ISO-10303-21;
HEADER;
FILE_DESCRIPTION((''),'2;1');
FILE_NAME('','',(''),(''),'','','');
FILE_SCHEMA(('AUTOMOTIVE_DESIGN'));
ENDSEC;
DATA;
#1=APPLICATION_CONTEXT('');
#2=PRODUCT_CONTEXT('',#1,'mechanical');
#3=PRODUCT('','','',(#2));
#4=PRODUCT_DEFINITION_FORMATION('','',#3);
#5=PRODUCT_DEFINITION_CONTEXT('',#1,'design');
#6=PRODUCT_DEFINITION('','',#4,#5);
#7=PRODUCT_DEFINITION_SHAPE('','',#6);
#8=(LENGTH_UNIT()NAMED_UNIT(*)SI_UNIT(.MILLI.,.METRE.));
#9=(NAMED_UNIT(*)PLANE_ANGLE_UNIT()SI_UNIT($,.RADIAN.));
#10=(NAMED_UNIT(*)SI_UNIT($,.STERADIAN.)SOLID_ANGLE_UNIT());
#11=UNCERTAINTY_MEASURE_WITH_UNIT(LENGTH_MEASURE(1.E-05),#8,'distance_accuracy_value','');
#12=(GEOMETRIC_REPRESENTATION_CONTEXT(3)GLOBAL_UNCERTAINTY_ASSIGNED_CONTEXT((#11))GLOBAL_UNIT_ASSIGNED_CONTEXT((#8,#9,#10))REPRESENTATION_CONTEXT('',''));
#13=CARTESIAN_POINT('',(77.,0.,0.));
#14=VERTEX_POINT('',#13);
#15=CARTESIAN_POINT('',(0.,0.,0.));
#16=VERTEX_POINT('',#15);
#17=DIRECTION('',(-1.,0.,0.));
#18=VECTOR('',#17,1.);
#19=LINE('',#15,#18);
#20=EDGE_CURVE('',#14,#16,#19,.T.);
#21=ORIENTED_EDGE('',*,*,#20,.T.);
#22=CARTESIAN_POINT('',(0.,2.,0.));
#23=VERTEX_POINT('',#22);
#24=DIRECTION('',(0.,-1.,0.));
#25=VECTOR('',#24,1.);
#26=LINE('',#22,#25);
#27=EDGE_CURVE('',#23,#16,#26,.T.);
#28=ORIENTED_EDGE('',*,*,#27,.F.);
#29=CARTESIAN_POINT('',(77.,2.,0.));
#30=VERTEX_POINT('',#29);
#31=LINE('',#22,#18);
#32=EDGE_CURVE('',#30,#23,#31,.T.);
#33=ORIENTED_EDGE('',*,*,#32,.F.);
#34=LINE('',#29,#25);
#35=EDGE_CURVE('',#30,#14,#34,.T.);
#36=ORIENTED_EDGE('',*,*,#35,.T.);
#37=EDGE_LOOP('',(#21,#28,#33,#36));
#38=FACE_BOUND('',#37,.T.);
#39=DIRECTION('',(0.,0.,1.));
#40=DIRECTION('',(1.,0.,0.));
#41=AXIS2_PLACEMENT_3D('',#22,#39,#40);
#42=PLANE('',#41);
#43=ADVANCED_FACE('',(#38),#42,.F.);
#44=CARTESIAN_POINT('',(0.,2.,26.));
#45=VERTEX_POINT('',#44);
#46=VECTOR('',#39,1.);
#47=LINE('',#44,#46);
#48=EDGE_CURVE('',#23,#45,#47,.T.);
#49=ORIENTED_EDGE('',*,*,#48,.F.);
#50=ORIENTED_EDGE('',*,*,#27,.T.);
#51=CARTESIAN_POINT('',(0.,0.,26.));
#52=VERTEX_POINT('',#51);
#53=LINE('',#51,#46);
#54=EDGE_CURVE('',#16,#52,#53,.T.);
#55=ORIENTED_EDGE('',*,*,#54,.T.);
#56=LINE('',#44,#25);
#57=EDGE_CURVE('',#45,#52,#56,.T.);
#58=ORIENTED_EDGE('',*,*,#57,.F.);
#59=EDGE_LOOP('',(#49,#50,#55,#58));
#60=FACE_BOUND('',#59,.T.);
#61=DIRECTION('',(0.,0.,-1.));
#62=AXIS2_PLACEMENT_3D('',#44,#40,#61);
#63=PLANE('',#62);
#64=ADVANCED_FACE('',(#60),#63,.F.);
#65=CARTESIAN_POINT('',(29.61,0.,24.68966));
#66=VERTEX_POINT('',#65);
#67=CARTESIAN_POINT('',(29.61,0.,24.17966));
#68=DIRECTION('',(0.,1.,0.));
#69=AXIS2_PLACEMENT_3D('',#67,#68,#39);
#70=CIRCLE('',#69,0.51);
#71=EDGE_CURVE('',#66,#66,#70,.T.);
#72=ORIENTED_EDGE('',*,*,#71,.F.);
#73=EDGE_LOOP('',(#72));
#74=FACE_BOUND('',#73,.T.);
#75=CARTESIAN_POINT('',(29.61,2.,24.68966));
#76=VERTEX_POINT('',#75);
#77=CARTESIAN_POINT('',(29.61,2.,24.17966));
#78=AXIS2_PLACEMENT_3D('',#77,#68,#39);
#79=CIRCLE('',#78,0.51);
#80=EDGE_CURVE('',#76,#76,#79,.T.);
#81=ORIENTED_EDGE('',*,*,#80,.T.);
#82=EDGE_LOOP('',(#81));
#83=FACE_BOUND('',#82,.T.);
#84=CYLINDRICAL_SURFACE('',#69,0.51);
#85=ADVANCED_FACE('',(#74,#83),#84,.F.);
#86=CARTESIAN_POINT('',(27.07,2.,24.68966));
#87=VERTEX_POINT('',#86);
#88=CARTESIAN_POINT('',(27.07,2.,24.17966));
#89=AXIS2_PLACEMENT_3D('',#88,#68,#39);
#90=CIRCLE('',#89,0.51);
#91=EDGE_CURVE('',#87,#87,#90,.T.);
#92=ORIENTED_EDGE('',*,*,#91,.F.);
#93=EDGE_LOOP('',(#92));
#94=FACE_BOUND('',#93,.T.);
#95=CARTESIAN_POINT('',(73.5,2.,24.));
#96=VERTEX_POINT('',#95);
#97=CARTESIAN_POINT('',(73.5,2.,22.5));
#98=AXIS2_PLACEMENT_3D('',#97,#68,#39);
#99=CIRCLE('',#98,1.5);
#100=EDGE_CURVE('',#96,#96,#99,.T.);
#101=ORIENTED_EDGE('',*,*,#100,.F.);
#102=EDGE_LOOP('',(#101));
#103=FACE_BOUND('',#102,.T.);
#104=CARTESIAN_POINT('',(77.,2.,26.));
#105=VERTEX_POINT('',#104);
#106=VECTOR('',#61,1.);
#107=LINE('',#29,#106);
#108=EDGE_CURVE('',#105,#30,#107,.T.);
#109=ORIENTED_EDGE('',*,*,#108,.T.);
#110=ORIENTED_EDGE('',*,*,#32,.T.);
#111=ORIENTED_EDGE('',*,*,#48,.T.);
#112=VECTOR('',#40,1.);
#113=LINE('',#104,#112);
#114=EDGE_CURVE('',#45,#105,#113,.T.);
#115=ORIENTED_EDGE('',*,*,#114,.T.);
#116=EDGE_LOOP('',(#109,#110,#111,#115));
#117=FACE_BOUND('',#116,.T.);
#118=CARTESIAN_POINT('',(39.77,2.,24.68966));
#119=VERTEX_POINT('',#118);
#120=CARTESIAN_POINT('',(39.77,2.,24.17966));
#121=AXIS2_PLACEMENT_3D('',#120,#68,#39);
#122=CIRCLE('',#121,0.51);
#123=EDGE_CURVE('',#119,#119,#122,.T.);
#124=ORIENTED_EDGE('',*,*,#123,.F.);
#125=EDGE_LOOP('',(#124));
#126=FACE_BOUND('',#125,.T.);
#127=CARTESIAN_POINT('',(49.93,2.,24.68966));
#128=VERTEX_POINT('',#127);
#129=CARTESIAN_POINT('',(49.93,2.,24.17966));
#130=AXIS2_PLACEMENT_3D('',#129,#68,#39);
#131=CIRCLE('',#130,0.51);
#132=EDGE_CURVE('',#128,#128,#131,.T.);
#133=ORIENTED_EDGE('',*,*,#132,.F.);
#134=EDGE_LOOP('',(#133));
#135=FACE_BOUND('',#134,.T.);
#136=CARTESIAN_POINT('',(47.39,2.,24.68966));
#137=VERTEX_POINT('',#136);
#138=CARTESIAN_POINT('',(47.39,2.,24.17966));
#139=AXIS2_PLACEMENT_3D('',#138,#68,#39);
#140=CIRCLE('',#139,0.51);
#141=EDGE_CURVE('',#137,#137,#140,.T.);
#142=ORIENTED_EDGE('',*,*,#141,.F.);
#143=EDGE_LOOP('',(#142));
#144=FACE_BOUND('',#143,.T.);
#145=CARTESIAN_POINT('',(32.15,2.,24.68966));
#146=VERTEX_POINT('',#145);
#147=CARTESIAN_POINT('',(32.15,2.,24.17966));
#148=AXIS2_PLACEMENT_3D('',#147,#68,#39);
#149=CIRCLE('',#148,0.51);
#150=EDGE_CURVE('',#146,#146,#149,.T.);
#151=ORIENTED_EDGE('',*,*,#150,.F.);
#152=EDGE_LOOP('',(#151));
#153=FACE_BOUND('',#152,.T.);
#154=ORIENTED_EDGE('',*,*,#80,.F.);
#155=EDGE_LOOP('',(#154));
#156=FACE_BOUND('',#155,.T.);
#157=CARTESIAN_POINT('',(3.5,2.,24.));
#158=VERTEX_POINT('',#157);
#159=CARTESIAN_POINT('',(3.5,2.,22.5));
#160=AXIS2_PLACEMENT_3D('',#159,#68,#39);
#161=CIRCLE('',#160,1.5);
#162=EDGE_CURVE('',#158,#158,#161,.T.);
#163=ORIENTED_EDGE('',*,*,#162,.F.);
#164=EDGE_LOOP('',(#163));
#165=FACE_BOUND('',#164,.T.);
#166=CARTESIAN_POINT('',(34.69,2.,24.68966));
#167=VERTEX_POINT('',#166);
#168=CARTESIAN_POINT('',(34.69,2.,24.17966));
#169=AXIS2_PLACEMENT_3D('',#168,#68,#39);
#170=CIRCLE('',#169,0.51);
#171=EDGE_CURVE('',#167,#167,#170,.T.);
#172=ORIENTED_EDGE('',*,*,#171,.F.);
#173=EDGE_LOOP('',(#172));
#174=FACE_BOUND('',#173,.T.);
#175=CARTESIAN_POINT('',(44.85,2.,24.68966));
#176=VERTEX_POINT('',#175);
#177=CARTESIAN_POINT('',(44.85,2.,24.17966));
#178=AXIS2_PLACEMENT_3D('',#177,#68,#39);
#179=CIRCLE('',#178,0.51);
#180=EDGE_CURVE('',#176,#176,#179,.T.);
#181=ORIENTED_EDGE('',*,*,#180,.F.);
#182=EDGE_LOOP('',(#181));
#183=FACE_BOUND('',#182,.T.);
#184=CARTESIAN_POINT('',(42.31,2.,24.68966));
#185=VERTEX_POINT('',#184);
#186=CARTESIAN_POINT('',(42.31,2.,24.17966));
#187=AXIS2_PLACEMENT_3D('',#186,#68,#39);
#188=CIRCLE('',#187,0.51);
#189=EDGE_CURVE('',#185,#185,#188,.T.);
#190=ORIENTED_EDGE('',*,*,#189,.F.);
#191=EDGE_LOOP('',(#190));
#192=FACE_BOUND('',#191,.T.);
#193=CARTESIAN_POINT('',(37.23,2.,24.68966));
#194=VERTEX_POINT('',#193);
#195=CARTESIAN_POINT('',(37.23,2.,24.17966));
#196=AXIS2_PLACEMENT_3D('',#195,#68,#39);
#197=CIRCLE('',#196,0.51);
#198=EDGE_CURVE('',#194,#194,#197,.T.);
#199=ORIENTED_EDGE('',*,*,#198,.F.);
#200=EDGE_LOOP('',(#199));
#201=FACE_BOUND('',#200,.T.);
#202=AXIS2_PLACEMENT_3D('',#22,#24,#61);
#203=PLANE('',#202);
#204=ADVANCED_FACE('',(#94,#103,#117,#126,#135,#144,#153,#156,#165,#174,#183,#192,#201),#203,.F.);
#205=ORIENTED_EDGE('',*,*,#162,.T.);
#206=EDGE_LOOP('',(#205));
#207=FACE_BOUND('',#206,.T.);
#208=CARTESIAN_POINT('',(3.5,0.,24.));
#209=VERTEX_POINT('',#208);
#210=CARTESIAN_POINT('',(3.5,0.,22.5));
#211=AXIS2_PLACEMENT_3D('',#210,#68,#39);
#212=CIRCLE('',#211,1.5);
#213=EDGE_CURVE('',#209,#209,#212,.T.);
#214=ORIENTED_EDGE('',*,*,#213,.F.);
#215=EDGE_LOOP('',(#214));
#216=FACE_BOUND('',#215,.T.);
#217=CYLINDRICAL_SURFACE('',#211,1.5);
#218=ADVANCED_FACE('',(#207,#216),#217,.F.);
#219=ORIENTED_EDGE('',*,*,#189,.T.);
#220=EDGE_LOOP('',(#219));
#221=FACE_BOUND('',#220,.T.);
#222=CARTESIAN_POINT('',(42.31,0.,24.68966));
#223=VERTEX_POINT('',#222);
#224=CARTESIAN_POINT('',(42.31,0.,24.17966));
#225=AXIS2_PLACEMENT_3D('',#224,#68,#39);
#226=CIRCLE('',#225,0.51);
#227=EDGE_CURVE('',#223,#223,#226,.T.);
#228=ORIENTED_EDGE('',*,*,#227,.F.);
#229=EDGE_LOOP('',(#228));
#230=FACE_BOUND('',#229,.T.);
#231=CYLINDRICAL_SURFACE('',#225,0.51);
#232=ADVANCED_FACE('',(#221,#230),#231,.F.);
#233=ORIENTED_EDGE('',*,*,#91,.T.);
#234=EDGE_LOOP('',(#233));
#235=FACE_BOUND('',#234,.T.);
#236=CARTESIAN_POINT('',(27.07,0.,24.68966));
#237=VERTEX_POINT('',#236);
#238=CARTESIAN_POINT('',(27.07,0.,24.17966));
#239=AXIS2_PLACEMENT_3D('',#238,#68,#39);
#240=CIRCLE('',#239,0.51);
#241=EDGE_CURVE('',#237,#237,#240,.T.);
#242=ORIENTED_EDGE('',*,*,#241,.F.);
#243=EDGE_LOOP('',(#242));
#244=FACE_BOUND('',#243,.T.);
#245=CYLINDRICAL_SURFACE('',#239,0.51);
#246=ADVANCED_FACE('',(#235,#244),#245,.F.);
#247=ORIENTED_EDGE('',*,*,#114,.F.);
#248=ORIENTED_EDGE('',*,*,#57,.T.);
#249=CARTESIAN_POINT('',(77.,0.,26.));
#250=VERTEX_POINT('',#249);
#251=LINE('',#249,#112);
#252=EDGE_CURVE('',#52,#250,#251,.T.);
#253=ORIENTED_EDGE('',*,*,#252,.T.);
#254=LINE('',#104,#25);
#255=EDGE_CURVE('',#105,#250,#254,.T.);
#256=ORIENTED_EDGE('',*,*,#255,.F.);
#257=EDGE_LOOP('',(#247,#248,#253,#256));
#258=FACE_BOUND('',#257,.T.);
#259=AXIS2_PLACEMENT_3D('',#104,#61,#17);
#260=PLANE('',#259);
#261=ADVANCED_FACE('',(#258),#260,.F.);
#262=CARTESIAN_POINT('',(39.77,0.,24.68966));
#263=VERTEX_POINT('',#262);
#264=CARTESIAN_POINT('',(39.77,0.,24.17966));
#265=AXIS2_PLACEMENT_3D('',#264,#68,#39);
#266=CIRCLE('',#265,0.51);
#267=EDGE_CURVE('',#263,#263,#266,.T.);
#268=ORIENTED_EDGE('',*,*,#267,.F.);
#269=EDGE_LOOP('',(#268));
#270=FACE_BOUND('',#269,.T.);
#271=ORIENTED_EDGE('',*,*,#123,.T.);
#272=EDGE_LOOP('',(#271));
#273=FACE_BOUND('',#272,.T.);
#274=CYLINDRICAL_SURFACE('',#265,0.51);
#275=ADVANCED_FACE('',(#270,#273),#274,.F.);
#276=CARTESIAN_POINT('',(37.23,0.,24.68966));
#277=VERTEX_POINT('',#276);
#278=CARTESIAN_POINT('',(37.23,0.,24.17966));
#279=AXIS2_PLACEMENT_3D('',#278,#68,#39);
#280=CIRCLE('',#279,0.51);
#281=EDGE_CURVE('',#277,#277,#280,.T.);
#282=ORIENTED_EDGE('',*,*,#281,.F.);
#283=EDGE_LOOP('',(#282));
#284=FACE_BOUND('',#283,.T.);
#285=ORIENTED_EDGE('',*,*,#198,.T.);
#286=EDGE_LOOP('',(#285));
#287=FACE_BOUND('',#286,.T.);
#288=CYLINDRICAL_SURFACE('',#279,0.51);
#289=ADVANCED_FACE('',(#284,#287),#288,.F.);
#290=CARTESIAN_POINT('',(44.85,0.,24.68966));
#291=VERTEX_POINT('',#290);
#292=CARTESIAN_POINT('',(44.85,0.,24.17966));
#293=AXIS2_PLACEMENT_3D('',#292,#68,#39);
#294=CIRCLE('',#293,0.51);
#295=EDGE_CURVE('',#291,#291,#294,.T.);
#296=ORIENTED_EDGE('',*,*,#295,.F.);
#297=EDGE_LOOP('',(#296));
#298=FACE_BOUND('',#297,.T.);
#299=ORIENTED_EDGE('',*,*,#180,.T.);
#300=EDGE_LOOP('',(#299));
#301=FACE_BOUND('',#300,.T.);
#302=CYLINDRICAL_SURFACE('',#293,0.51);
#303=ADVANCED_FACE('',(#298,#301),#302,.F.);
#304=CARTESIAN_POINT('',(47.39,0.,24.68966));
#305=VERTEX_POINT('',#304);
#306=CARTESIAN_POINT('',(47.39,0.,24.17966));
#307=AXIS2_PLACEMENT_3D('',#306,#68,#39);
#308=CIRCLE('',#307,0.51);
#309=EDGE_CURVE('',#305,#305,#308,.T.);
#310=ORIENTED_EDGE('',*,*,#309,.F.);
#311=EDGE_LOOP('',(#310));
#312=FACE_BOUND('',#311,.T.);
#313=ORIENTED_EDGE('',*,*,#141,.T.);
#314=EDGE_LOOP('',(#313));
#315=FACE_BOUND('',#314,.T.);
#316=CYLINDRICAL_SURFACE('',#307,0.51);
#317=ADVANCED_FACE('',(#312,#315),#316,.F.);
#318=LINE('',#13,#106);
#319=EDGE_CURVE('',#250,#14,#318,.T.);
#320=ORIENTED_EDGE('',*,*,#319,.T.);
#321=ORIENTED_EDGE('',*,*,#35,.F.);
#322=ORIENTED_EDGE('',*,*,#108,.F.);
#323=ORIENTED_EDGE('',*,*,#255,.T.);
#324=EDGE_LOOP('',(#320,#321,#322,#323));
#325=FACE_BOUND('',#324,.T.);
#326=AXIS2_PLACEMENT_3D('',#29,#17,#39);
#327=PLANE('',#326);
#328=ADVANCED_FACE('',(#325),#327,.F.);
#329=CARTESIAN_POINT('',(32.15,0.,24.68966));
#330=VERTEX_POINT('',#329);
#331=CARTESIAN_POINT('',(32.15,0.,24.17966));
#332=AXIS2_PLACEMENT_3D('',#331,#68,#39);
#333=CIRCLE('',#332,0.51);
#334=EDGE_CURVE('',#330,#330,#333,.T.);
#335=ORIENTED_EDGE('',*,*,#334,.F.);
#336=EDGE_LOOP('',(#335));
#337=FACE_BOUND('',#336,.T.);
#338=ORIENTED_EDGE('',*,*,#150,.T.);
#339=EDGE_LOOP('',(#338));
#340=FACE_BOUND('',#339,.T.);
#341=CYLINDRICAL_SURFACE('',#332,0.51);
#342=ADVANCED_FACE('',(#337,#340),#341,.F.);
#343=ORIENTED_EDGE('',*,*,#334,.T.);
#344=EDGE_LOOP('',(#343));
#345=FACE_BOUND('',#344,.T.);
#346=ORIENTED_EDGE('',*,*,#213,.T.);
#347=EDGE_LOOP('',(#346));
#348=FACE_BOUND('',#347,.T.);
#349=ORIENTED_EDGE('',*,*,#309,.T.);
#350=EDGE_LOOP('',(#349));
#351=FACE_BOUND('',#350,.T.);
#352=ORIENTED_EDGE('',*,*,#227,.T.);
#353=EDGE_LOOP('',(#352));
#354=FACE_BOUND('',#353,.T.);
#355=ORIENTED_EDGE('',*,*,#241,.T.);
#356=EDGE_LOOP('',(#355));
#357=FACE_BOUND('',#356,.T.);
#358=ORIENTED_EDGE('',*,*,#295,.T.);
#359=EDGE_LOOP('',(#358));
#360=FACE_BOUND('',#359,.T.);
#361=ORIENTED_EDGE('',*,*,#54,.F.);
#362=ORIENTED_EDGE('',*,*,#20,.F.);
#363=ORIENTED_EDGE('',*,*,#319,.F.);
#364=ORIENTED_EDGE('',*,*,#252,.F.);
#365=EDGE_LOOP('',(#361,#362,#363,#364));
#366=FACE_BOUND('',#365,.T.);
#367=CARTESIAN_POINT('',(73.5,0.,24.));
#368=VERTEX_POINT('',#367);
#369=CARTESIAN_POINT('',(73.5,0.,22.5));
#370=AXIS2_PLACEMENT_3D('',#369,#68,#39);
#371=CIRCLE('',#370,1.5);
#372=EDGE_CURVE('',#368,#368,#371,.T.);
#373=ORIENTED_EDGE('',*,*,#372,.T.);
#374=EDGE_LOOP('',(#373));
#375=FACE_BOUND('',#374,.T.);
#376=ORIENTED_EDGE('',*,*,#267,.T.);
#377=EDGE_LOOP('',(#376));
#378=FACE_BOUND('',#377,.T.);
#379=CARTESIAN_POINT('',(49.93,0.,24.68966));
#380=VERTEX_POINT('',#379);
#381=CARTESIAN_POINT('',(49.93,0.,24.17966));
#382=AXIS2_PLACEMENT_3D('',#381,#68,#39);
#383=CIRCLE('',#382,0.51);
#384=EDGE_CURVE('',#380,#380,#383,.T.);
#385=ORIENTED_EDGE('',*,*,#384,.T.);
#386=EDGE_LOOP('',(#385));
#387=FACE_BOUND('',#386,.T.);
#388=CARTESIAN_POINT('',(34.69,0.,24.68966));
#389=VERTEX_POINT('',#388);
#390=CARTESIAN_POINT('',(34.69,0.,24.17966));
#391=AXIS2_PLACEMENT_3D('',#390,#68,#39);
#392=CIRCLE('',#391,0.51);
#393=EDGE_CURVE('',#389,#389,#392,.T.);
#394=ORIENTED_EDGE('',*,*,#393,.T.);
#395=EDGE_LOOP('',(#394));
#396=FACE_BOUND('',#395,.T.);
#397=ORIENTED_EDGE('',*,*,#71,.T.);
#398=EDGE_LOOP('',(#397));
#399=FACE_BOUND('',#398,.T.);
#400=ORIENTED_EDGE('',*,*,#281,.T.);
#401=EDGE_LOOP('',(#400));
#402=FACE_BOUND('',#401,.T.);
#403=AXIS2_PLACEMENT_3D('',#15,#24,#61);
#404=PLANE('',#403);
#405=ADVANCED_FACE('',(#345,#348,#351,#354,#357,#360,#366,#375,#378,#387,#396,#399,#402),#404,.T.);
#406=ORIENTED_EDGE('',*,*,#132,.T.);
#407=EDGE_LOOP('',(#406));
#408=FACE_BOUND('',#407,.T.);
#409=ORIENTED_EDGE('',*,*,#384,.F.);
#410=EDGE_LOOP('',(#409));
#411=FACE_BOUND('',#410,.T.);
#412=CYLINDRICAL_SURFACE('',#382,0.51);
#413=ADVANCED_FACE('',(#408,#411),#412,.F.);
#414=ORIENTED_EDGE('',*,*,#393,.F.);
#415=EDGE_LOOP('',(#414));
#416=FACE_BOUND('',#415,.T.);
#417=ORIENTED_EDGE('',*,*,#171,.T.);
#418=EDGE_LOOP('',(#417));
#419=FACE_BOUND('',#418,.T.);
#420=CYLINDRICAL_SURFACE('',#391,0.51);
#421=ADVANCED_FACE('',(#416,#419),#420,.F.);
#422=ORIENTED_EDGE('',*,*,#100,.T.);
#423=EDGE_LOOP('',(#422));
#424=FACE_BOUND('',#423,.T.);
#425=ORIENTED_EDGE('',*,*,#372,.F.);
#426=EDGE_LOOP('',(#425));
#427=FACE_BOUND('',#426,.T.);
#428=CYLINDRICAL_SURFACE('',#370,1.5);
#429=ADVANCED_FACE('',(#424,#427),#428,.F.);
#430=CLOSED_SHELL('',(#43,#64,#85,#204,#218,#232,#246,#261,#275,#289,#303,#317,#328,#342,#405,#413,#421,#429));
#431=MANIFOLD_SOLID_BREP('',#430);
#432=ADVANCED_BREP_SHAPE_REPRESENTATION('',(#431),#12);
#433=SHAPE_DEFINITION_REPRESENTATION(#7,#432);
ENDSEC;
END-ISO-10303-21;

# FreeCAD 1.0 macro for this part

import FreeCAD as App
import Part
import Sketcher
Q = App.Units.Quantity

doc = App.newDocument("Part")
body = doc.addObject("PartDesign::Body", "Body")

# Sketch on XZ plane
sketch1 = body.newObject("Sketcher::SketchObject", "Sketch")
sketch1.AttachmentSupport = (doc.getObject("XZ_Plane"), [""])
sketch1.MapMode = "FlatFace"
sketch1.addGeometry(Part.LineSegment(App.Vector(0, 0, 0), App.Vector(0, 26, 0)), False)
sketch1.addGeometry(Part.LineSegment(App.Vector(0, 26, 0), App.Vector(77, 26, 0)), False)
sketch1.addGeometry(Part.LineSegment(App.Vector(77, 26, 0), App.Vector(77, 0, 0)), False)
sketch1.addGeometry(Part.LineSegment(App.Vector(77, 0, 0), App.Vector(0, 0, 0)), False)
sketch1.addConstraint(Sketcher.Constraint("Coincident", 0, 2, 1, 1))
sketch1.addConstraint(Sketcher.Constraint("Coincident", 1, 2, 2, 1))
sketch1.addConstraint(Sketcher.Constraint("Coincident", 2, 2, 3, 1))
sketch1.addConstraint(Sketcher.Constraint("Coincident", 3, 2, 0, 1))
sketch1.addConstraint(Sketcher.Constraint("Vertical", 0))
sketch1.addConstraint(Sketcher.Constraint("Horizontal", 1))
sketch1.addConstraint(Sketcher.Constraint("Vertical", 2))
sketch1.addConstraint(Sketcher.Constraint("Horizontal", 3))
sketch1.addConstraint(Sketcher.Constraint("Coincident", 3, 2, -1, 1))
sketch1.addConstraint(Sketcher.Constraint("DistanceX", 1, 1, 1, 2, Q("77 mm")))
sketch1.addConstraint(Sketcher.Constraint("DistanceY", 0, 1, 0, 2, Q("26 mm")))
pad1 = body.newObject("PartDesign::Pad", "Pad")
pad1.Profile = sketch1
pad1.Length = 2
pad1.Reversed = True

# Sketch on XZ plane
sketch2 = body.newObject("Sketcher::SketchObject", "Sketch001")
sketch2.AttachmentSupport = (doc.getObject("XZ_Plane"), [""])
sketch2.MapMode = "FlatFace"
sketch2.AttachmentOffset = App.Placement(App.Vector(0, 0, -2), App.Rotation())
sketch2.addGeometry(Part.Circle(App.Vector(3.5, 22.5, 0), App.Vector(0, 0, 1), 1.5), False)
sketch2.addGeometry(Part.Circle(App.Vector(73.5, 22.5, 0), App.Vector(0, 0, 1), 1.5), False)
sketch2.addConstraint(Sketcher.Constraint("Equal", 0, 1))
sketch2.addConstraint(Sketcher.Constraint("Horizontal", 0, 3, 1, 3))
sketch2.addConstraint(Sketcher.Constraint("Diameter", 0, Q("3 mm")))
sketch2.addConstraint(Sketcher.Constraint("DistanceX", 0, 3, 1, 3, Q("70 mm")))
sketch2.addConstraint(Sketcher.Constraint("DistanceX", -1, 1, 0, 3, Q("3.5 mm")))
sketch2.addConstraint(Sketcher.Constraint("DistanceY", -1, 1, 0, 3, Q("22.5 mm")))
pocket1 = body.newObject("PartDesign::Pocket", "Pocket")
pocket1.Profile = sketch2
pocket1.Length = 2
pocket1.Reversed = True

# Sketch on XZ plane
sketch3 = body.newObject("Sketcher::SketchObject", "Sketch002")
sketch3.AttachmentSupport = (doc.getObject("XZ_Plane"), [""])
sketch3.MapMode = "FlatFace"
sketch3.AttachmentOffset = App.Placement(App.Vector(0, 0, -2), App.Rotation())
sketch3.addGeometry(Part.Circle(App.Vector(27.1, 24.2, 0), App.Vector(0, 0, 1), 0.5), False)
sketch3.addGeometry(Part.Circle(App.Vector(29.6, 24.2, 0), App.Vector(0, 0, 1), 0.5), False)
sketch3.addGeometry(Part.Circle(App.Vector(32.1, 24.2, 0), App.Vector(0, 0, 1), 0.5), False)
sketch3.addGeometry(Part.Circle(App.Vector(34.7, 24.2, 0), App.Vector(0, 0, 1), 0.5), False)
sketch3.addGeometry(Part.Circle(App.Vector(37.2, 24.2, 0), App.Vector(0, 0, 1), 0.5), False)
sketch3.addGeometry(Part.Circle(App.Vector(39.8, 24.2, 0), App.Vector(0, 0, 1), 0.5), False)
sketch3.addGeometry(Part.Circle(App.Vector(42.3, 24.2, 0), App.Vector(0, 0, 1), 0.5), False)
sketch3.addGeometry(Part.Circle(App.Vector(44.9, 24.2, 0), App.Vector(0, 0, 1), 0.5), False)
sketch3.addGeometry(Part.Circle(App.Vector(47.4, 24.2, 0), App.Vector(0, 0, 1), 0.5), False)
sketch3.addGeometry(Part.Circle(App.Vector(49.9, 24.2, 0), App.Vector(0, 0, 1), 0.5), False)
sketch3.addConstraint(Sketcher.Constraint("Equal", 0, 1))
sketch3.addConstraint(Sketcher.Constraint("Equal", 1, 2))
sketch3.addConstraint(Sketcher.Constraint("Equal", 2, 3))
sketch3.addConstraint(Sketcher.Constraint("Equal", 3, 4))
sketch3.addConstraint(Sketcher.Constraint("Equal", 4, 5))
sketch3.addConstraint(Sketcher.Constraint("Equal", 5, 6))
sketch3.addConstraint(Sketcher.Constraint("Equal", 6, 7))
sketch3.addConstraint(Sketcher.Constraint("Equal", 7, 8))
sketch3.addConstraint(Sketcher.Constraint("Equal", 8, 9))
sketch3.addConstraint(Sketcher.Constraint("Horizontal", 0, 3, 1, 3))
sketch3.addConstraint(Sketcher.Constraint("Horizontal", 1, 3, 2, 3))
sketch3.addConstraint(Sketcher.Constraint("Horizontal", 2, 3, 3, 3))
sketch3.addConstraint(Sketcher.Constraint("Horizontal", 3, 3, 4, 3))
sketch3.addConstraint(Sketcher.Constraint("Horizontal", 4, 3, 5, 3))
sketch3.addConstraint(Sketcher.Constraint("Horizontal", 5, 3, 6, 3))
sketch3.addConstraint(Sketcher.Constraint("Horizontal", 6, 3, 7, 3))
sketch3.addConstraint(Sketcher.Constraint("Horizontal", 7, 3, 8, 3))
sketch3.addConstraint(Sketcher.Constraint("Horizontal", 8, 3, 9, 3))
sketch3.addConstraint(Sketcher.Constraint("Diameter", 0, Q("1.02 mm")))
sketch3.addConstraint(Sketcher.Constraint("DistanceX", 0, 3, 5, 3, Q("12.7 mm")))
sketch3.addConstraint(Sketcher.Constraint("DistanceX", 1, 3, 6, 3, Q("12.7 mm")))
sketch3.addConstraint(Sketcher.Constraint("DistanceX", 2, 3, 7, 3, Q("12.7 mm")))
sketch3.addConstraint(Sketcher.Constraint("DistanceX", 3, 3, 8, 3, Q("12.7 mm")))
sketch3.addConstraint(Sketcher.Constraint("DistanceX", 4, 3, 9, 3, Q("12.7 mm")))
sketch3.addConstraint(Sketcher.Constraint("DistanceX", -1, 1, 0, 3, Q("27.07 mm")))
sketch3.addConstraint(Sketcher.Constraint("DistanceX", -1, 1, 1, 3, Q("29.61 mm")))
sketch3.addConstraint(Sketcher.Constraint("DistanceX", -1, 1, 2, 3, Q("32.15 mm")))
sketch3.addConstraint(Sketcher.Constraint("DistanceX", -1, 1, 3, 3, Q("34.69 mm")))
sketch3.addConstraint(Sketcher.Constraint("DistanceX", -1, 1, 4, 3, Q("37.23 mm")))
sketch3.addConstraint(Sketcher.Constraint("DistanceY", -1, 1, 0, 3, Q("24.17966 mm")))
pocket2 = body.newObject("PartDesign::Pocket", "Pocket001")
pocket2.Profile = sketch3
pocket2.Length = 2
pocket2.Reversed = True

doc.recompute()
